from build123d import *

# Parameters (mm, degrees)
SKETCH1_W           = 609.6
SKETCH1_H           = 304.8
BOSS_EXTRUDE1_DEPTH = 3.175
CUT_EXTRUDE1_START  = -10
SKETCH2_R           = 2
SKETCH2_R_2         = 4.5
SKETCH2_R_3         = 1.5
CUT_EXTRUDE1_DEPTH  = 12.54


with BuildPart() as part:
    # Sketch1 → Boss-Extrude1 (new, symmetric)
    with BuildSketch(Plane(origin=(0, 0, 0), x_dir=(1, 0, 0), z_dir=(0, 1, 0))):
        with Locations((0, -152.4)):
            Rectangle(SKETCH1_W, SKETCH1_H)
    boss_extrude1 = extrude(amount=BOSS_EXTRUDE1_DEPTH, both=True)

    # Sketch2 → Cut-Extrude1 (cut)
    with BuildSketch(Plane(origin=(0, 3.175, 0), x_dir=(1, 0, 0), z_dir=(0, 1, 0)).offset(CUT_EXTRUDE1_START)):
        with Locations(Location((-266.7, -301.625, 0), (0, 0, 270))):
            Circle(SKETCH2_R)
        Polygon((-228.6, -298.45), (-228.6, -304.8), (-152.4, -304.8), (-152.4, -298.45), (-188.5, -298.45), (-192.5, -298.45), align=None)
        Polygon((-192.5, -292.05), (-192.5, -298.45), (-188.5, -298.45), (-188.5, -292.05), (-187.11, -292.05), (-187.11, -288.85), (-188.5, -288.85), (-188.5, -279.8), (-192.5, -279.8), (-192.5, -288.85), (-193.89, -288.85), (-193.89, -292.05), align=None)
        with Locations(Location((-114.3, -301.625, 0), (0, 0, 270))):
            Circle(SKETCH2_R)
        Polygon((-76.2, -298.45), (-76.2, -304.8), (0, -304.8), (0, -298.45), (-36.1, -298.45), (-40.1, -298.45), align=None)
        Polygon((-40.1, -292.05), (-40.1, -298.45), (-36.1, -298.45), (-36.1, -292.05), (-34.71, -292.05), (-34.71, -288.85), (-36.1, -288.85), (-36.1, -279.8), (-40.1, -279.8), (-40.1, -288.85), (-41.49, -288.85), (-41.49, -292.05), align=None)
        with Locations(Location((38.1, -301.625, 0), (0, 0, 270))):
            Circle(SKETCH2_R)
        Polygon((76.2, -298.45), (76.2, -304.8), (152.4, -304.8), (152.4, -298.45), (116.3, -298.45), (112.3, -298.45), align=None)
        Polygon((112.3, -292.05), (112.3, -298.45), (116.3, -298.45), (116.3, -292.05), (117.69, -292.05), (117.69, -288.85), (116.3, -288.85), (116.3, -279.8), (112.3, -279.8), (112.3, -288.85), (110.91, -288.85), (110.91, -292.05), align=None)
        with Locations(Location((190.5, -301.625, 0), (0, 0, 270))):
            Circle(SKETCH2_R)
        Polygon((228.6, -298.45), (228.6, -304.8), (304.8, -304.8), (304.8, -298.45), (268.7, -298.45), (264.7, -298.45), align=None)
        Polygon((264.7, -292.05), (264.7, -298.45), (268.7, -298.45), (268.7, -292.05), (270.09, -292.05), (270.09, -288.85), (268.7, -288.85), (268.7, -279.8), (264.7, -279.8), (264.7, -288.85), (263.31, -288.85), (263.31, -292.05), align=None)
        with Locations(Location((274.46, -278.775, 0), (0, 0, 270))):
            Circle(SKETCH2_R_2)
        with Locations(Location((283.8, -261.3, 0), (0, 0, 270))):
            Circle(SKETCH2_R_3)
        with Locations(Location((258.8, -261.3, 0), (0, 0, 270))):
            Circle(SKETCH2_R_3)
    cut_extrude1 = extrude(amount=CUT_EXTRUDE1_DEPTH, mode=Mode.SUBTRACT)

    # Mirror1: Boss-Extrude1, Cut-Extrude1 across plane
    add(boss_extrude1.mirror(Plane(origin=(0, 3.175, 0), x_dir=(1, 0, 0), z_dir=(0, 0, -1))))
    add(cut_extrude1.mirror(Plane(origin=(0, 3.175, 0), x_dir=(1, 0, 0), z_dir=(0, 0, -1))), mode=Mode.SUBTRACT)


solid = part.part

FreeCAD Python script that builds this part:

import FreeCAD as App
import Part
import Sketcher
from FreeCAD import Vector

doc = App.newDocument("Part")
body = doc.addObject("PartDesign::Body", "Body")

# Sketch on XZ plane
sketch1 = body.newObject("Sketcher::SketchObject", "Sketch")
sketch1.AttachmentSupport = (doc.getObject("XZ_Plane"), [""])
sketch1.MapMode = "FlatFace"
sketch1.addGeometry([
    Part.LineSegment(Vector(-305, 0, 0), Vector(-305, 305, 0)),
    Part.LineSegment(Vector(-305, 305, 0), Vector(305, 305, 0)),
    Part.LineSegment(Vector(305, 305, 0), Vector(305, 0, 0)),
    Part.LineSegment(Vector(305, 0, 0), Vector(-305, 0, 0)),
], False)
sketch1.addConstraint([
    Sketcher.Constraint("Coincident", 0, 2, 1, 1),
    Sketcher.Constraint("Coincident", 1, 2, 2, 1),
    Sketcher.Constraint("Coincident", 2, 2, 3, 1),
    Sketcher.Constraint("Coincident", 3, 2, 0, 1),
    Sketcher.Constraint("Vertical", 0),
    Sketcher.Constraint("Horizontal", 1),
    Sketcher.Constraint("Vertical", 2),
    Sketcher.Constraint("Horizontal", 3),
    Sketcher.Constraint("Symmetric", 2, 2, 3, 2, -1, 1),
    Sketcher.Constraint("DistanceX", 1, 1, 1, 2, 609.6),
    Sketcher.Constraint("DistanceY", 0, 1, 0, 2, 304.8),
])
pad1 = body.newObject("PartDesign::Pad", "Pad")
pad1.Profile = sketch1
pad1.Length = 6.35
pad1.Midplane = True

# Sketch on XZ plane
sketch2 = body.newObject("Sketcher::SketchObject", "Sketch001")
sketch2.AttachmentSupport = (doc.getObject("XZ_Plane"), [""])
sketch2.MapMode = "FlatFace"
sketch2.AttachmentOffset = App.Placement(Vector(0, 0, 6.825), App.Rotation())
sketch2.addGeometry([
    Part.Circle(Vector(-266.7, 301.6, 0), Vector(0, 0, 1), 2),  # 0
    Part.LineSegment(Vector(-228.6, 298.4, 0), Vector(-228.6, 304.8, 0)),  # 1
    Part.LineSegment(Vector(-228.6, 304.8, 0), Vector(-152.4, 304.8, 0)),  # 2
    Part.LineSegment(Vector(-152.4, 304.8, 0), Vector(-152.4, 298.4, 0)),  # 3
    Part.LineSegment(Vector(-152.4, 298.4, 0), Vector(-188.5, 298.4, 0)),  # 4
    Part.LineSegment(Vector(-188.5, 298.4, 0), Vector(-188.5, 292.1, 0)),  # 5
    Part.LineSegment(Vector(-188.5, 292.1, 0), Vector(-187.1, 292.1, 0)),  # 6
    Part.LineSegment(Vector(-187.1, 292.1, 0), Vector(-187.1, 288.9, 0)),  # 7
    Part.LineSegment(Vector(-187.1, 288.9, 0), Vector(-188.5, 288.9, 0)),  # 8
    Part.LineSegment(Vector(-188.5, 288.9, 0), Vector(-188.5, 279.8, 0)),  # 9
    Part.LineSegment(Vector(-188.5, 279.8, 0), Vector(-192.5, 279.8, 0)),  # 10
    Part.LineSegment(Vector(-192.5, 279.8, 0), Vector(-192.5, 288.9, 0)),  # 11
    Part.LineSegment(Vector(-192.5, 288.9, 0), Vector(-193.9, 288.9, 0)),  # 12
    Part.LineSegment(Vector(-193.9, 288.9, 0), Vector(-193.9, 292.1, 0)),  # 13
    Part.LineSegment(Vector(-193.9, 292.1, 0), Vector(-192.5, 292.1, 0)),  # 14
    Part.LineSegment(Vector(-192.5, 292.1, 0), Vector(-192.5, 298.4, 0)),  # 15
    Part.LineSegment(Vector(-192.5, 298.4, 0), Vector(-228.6, 298.4, 0)),  # 16
    Part.Circle(Vector(-114.3, 301.6, 0), Vector(0, 0, 1), 2),  # 17
    Part.LineSegment(Vector(-76.2, 298.4, 0), Vector(-76.2, 304.8, 0)),  # 18
    Part.LineSegment(Vector(-76.2, 304.8, 0), Vector(0, 304.8, 0)),  # 19
    Part.LineSegment(Vector(0, 304.8, 0), Vector(0, 298.4, 0)),  # 20
    Part.LineSegment(Vector(0, 298.4, 0), Vector(-36.1, 298.4, 0)),  # 21
    Part.LineSegment(Vector(-36.1, 298.4, 0), Vector(-36.1, 292.1, 0)),  # 22
    Part.LineSegment(Vector(-36.1, 292.1, 0), Vector(-34.7, 292.1, 0)),  # 23
    Part.LineSegment(Vector(-34.7, 292.1, 0), Vector(-34.7, 288.9, 0)),  # 24
    Part.LineSegment(Vector(-34.7, 288.9, 0), Vector(-36.1, 288.9, 0)),  # 25
    Part.LineSegment(Vector(-36.1, 288.9, 0), Vector(-36.1, 279.8, 0)),  # 26
    Part.LineSegment(Vector(-36.1, 279.8, 0), Vector(-40.1, 279.8, 0)),  # 27
    Part.LineSegment(Vector(-40.1, 279.8, 0), Vector(-40.1, 288.9, 0)),  # 28
    Part.LineSegment(Vector(-40.1, 288.9, 0), Vector(-41.5, 288.9, 0)),  # 29
    Part.LineSegment(Vector(-41.5, 288.9, 0), Vector(-41.5, 292.1, 0)),  # 30
    Part.LineSegment(Vector(-41.5, 292.1, 0), Vector(-40.1, 292.1, 0)),  # 31
    Part.LineSegment(Vector(-40.1, 292.1, 0), Vector(-40.1, 298.4, 0)),  # 32
    Part.LineSegment(Vector(-40.1, 298.4, 0), Vector(-76.2, 298.4, 0)),  # 33
    Part.Circle(Vector(38.1, 301.6, 0), Vector(0, 0, 1), 2),  # 34
    Part.LineSegment(Vector(76.2, 298.4, 0), Vector(76.2, 304.8, 0)),  # 35
    Part.LineSegment(Vector(76.2, 304.8, 0), Vector(152.4, 304.8, 0)),  # 36
    Part.LineSegment(Vector(152.4, 304.8, 0), Vector(152.4, 298.4, 0)),  # 37
    Part.LineSegment(Vector(152.4, 298.4, 0), Vector(116.3, 298.4, 0)),  # 38
    Part.LineSegment(Vector(116.3, 298.4, 0), Vector(116.3, 292.1, 0)),  # 39
    Part.LineSegment(Vector(116.3, 292.1, 0), Vector(117.7, 292.1, 0)),  # 40
    Part.LineSegment(Vector(117.7, 292.1, 0), Vector(117.7, 288.9, 0)),  # 41
    Part.LineSegment(Vector(117.7, 288.9, 0), Vector(116.3, 288.9, 0)),  # 42
    Part.LineSegment(Vector(116.3, 288.9, 0), Vector(116.3, 279.8, 0)),  # 43
    Part.LineSegment(Vector(116.3, 279.8, 0), Vector(112.3, 279.8, 0)),  # 44
    Part.LineSegment(Vector(112.3, 279.8, 0), Vector(112.3, 288.9, 0)),  # 45
    Part.LineSegment(Vector(112.3, 288.9, 0), Vector(110.9, 288.9, 0)),  # 46
    Part.LineSegment(Vector(110.9, 288.9, 0), Vector(110.9, 292.1, 0)),  # 47
    Part.LineSegment(Vector(110.9, 292.1, 0), Vector(112.3, 292.1, 0)),  # 48
    Part.LineSegment(Vector(112.3, 292.1, 0), Vector(112.3, 298.4, 0)),  # 49
    Part.LineSegment(Vector(112.3, 298.4, 0), Vector(76.2, 298.4, 0)),  # 50
    Part.Circle(Vector(190.5, 301.6, 0), Vector(0, 0, 1), 2),  # 51
    Part.LineSegment(Vector(228.6, 298.4, 0), Vector(228.6, 304.8, 0)),  # 52
    Part.LineSegment(Vector(228.6, 304.8, 0), Vector(304.8, 304.8, 0)),  # 53
    Part.LineSegment(Vector(304.8, 304.8, 0), Vector(304.8, 298.4, 0)),  # 54
    Part.LineSegment(Vector(304.8, 298.4, 0), Vector(268.7, 298.4, 0)),  # 55
    Part.LineSegment(Vector(268.7, 298.4, 0), Vector(268.7, 292.1, 0)),  # 56
    Part.LineSegment(Vector(268.7, 292.1, 0), Vector(270.1, 292.1, 0)),  # 57
    Part.LineSegment(Vector(270.1, 292.1, 0), Vector(270.1, 288.9, 0)),  # 58
    Part.LineSegment(Vector(270.1, 288.9, 0), Vector(268.7, 288.9, 0)),  # 59
    Part.LineSegment(Vector(268.7, 288.9, 0), Vector(268.7, 279.8, 0)),  # 60
    Part.LineSegment(Vector(268.7, 279.8, 0), Vector(264.7, 279.8, 0)),  # 61
    Part.LineSegment(Vector(264.7, 279.8, 0), Vector(264.7, 288.9, 0)),  # 62
    Part.LineSegment(Vector(264.7, 288.9, 0), Vector(263.3, 288.9, 0)),  # 63
    Part.LineSegment(Vector(263.3, 288.9, 0), Vector(263.3, 292.1, 0)),  # 64
    Part.LineSegment(Vector(263.3, 292.1, 0), Vector(264.7, 292.1, 0)),  # 65
    Part.LineSegment(Vector(264.7, 292.1, 0), Vector(264.7, 298.4, 0)),  # 66
    Part.LineSegment(Vector(264.7, 298.4, 0), Vector(228.6, 298.4, 0)),  # 67
    Part.Circle(Vector(274.5, 278.8, 0), Vector(0, 0, 1), 4.5),  # 68
    Part.Circle(Vector(283.8, 261.3, 0), Vector(0, 0, 1), 1.5),  # 69
    Part.Circle(Vector(258.8, 261.3, 0), Vector(0, 0, 1), 1.5),  # 70
], False)
sketch2.addConstraint([
    Sketcher.Constraint("Coincident", 1, 2, 2, 1),
    Sketcher.Constraint("Coincident", 2, 2, 3, 1),
    Sketcher.Constraint("Coincident", 3, 2, 4, 1),
    Sketcher.Constraint("Coincident", 4, 2, 5, 1),
    Sketcher.Constraint("Coincident", 5, 2, 6, 1),
    Sketcher.Constraint("Coincident", 6, 2, 7, 1),
    Sketcher.Constraint("Coincident", 7, 2, 8, 1),
    Sketcher.Constraint("Coincident", 8, 2, 9, 1),
    Sketcher.Constraint("Coincident", 9, 2, 10, 1),
    Sketcher.Constraint("Coincident", 10, 2, 11, 1),
    Sketcher.Constraint("Coincident", 11, 2, 12, 1),
    Sketcher.Constraint("Coincident", 12, 2, 13, 1),
    Sketcher.Constraint("Coincident", 13, 2, 14, 1),
    Sketcher.Constraint("Coincident", 14, 2, 15, 1),
    Sketcher.Constraint("Coincident", 15, 2, 16, 1),
    Sketcher.Constraint("Coincident", 16, 2, 1, 1),
    Sketcher.Constraint("Coincident", 18, 2, 19, 1),
    Sketcher.Constraint("Coincident", 19, 2, 20, 1),
    Sketcher.Constraint("Coincident", 20, 2, 21, 1),
    Sketcher.Constraint("Coincident", 21, 2, 22, 1),
    Sketcher.Constraint("Coincident", 22, 2, 23, 1),
    Sketcher.Constraint("Coincident", 23, 2, 24, 1),
    Sketcher.Constraint("Coincident", 24, 2, 25, 1),
    Sketcher.Constraint("Coincident", 25, 2, 26, 1),
    Sketcher.Constraint("Coincident", 26, 2, 27, 1),
    Sketcher.Constraint("Coincident", 27, 2, 28, 1),
    Sketcher.Constraint("Coincident", 28, 2, 29, 1),
    Sketcher.Constraint("Coincident", 29, 2, 30, 1),
    Sketcher.Constraint("Coincident", 30, 2, 31, 1),
    Sketcher.Constraint("Coincident", 31, 2, 32, 1),
    Sketcher.Constraint("Coincident", 32, 2, 33, 1),
    Sketcher.Constraint("Coincident", 33, 2, 18, 1),
    Sketcher.Constraint("Coincident", 35, 2, 36, 1),
    Sketcher.Constraint("Coincident", 36, 2, 37, 1),
    Sketcher.Constraint("Coincident", 37, 2, 38, 1),
    Sketcher.Constraint("Coincident", 38, 2, 39, 1),
    Sketcher.Constraint("Coincident", 39, 2, 40, 1),
    Sketcher.Constraint("Coincident", 40, 2, 41, 1),
    Sketcher.Constraint("Coincident", 41, 2, 42, 1),
    Sketcher.Constraint("Coincident", 42, 2, 43, 1),
    Sketcher.Constraint("Coincident", 43, 2, 44, 1),
    Sketcher.Constraint("Coincident", 44, 2, 45, 1),
    Sketcher.Constraint("Coincident", 45, 2, 46, 1),
    Sketcher.Constraint("Coincident", 46, 2, 47, 1),
    Sketcher.Constraint("Coincident", 47, 2, 48, 1),
    Sketcher.Constraint("Coincident", 48, 2, 49, 1),
    Sketcher.Constraint("Coincident", 49, 2, 50, 1),
    Sketcher.Constraint("Coincident", 50, 2, 35, 1),
    Sketcher.Constraint("Coincident", 52, 2, 53, 1),
    Sketcher.Constraint("Coincident", 53, 2, 54, 1),
    Sketcher.Constraint("Coincident", 54, 2, 55, 1),
    Sketcher.Constraint("Coincident", 55, 2, 56, 1),
    Sketcher.Constraint("Coincident", 56, 2, 57, 1),
    Sketcher.Constraint("Coincident", 57, 2, 58, 1),
    Sketcher.Constraint("Coincident", 58, 2, 59, 1),
    Sketcher.Constraint("Coincident", 59, 2, 60, 1),
    Sketcher.Constraint("Coincident", 60, 2, 61, 1),
    Sketcher.Constraint("Coincident", 61, 2, 62, 1),
    Sketcher.Constraint("Coincident", 62, 2, 63, 1),
    Sketcher.Constraint("Coincident", 63, 2, 64, 1),
    Sketcher.Constraint("Coincident", 64, 2, 65, 1),
    Sketcher.Constraint("Coincident", 65, 2, 66, 1),
    Sketcher.Constraint("Coincident", 66, 2, 67, 1),
    Sketcher.Constraint("Coincident", 67, 2, 52, 1),
    Sketcher.Constraint("Vertical", 1),
    Sketcher.Constraint("Horizontal", 2),
    Sketcher.Constraint("Vertical", 3),
    Sketcher.Constraint("Horizontal", 4),
    Sketcher.Constraint("Vertical", 5),
    Sketcher.Constraint("Horizontal", 6),
    Sketcher.Constraint("Vertical", 7),
    Sketcher.Constraint("Horizontal", 8),
    Sketcher.Constraint("Vertical", 9),
    Sketcher.Constraint("Horizontal", 10),
    Sketcher.Constraint("Vertical", 11),
    Sketcher.Constraint("Horizontal", 12),
    Sketcher.Constraint("Vertical", 13),
    Sketcher.Constraint("Horizontal", 14),
    Sketcher.Constraint("Vertical", 15),
    Sketcher.Constraint("Horizontal", 16),
    Sketcher.Constraint("Vertical", 18),
    Sketcher.Constraint("Horizontal", 19),
    Sketcher.Constraint("Vertical", 20),
    Sketcher.Constraint("Horizontal", 21),
    Sketcher.Constraint("Vertical", 22),
    Sketcher.Constraint("Horizontal", 23),
    Sketcher.Constraint("Vertical", 24),
    Sketcher.Constraint("Horizontal", 25),
    Sketcher.Constraint("Vertical", 26),
    Sketcher.Constraint("Horizontal", 27),
    Sketcher.Constraint("Vertical", 28),
    Sketcher.Constraint("Horizontal", 29),
    Sketcher.Constraint("Vertical", 30),
    Sketcher.Constraint("Horizontal", 31),
    Sketcher.Constraint("Vertical", 32),
    Sketcher.Constraint("Horizontal", 33),
    Sketcher.Constraint("Vertical", 35),
    Sketcher.Constraint("Horizontal", 36),
    Sketcher.Constraint("Vertical", 37),
    Sketcher.Constraint("Horizontal", 38),
    Sketcher.Constraint("Vertical", 39),
    Sketcher.Constraint("Horizontal", 40),
    Sketcher.Constraint("Vertical", 41),
    Sketcher.Constraint("Horizontal", 42),
    Sketcher.Constraint("Vertical", 43),
    Sketcher.Constraint("Horizontal", 44),
    Sketcher.Constraint("Vertical", 45),
    Sketcher.Constraint("Horizontal", 46),
    Sketcher.Constraint("Vertical", 47),
    Sketcher.Constraint("Horizontal", 48),
    Sketcher.Constraint("Vertical", 49),
    Sketcher.Constraint("Horizontal", 50),
    Sketcher.Constraint("Vertical", 52),
    Sketcher.Constraint("Horizontal", 53),
    Sketcher.Constraint("Vertical", 54),
    Sketcher.Constraint("Horizontal", 55),
    Sketcher.Constraint("Vertical", 56),
    Sketcher.Constraint("Horizontal", 57),
    Sketcher.Constraint("Vertical", 58),
    Sketcher.Constraint("Horizontal", 59),
    Sketcher.Constraint("Vertical", 60),
    Sketcher.Constraint("Horizontal", 61),
    Sketcher.Constraint("Vertical", 62),
    Sketcher.Constraint("Horizontal", 63),
    Sketcher.Constraint("Vertical", 64),
    Sketcher.Constraint("Horizontal", 65),
    Sketcher.Constraint("Vertical", 66),
    Sketcher.Constraint("Horizontal", 67),
    Sketcher.Constraint("Equal", 0, 17),
    Sketcher.Constraint("Equal", 17, 34),
    Sketcher.Constraint("Equal", 34, 51),
    Sketcher.Constraint("Equal", 69, 70),
    Sketcher.Constraint("Symmetric", 18, 2, 35, 2, -2),
    Sketcher.Constraint("Symmetric", 2, 2, 36, 2, -2),
    Sketcher.Constraint("Symmetric", 1, 2, 52, 2, -2),
    Sketcher.Constraint("PointOnObject", 19, 2, -2),
    Sketcher.Constraint("Horizontal", 0, 3, 17, 3),
    Sketcher.Constraint("Horizontal", 17, 3, 34, 3),
    Sketcher.Constraint("Horizontal", 34, 3, 51, 3),
    Sketcher.Constraint("Horizontal", 69, 3, 70, 3),
    Sketcher.Constraint("Horizontal", 8, 2, 11, 2),
    Sketcher.Constraint("Horizontal", 6, 2, 13, 2),
    Sketcher.Constraint("Horizontal", 4, 2, 15, 2),
    Sketcher.Constraint("Horizontal", 16, 2, 20, 2),
    Sketcher.Constraint("Horizontal", 14, 2, 22, 2),
    Sketcher.Constraint("Horizontal", 12, 2, 24, 2),
    Sketcher.Constraint("Horizontal", 10, 2, 26, 2),
    Sketcher.Constraint("Horizontal", 25, 2, 28, 2),
    Sketcher.Constraint("Horizontal", 23, 2, 30, 2),
    Sketcher.Constraint("Horizontal", 21, 2, 32, 2),
    Sketcher.Constraint("Horizontal", 33, 2, 37, 2),
    Sketcher.Constraint("Horizontal", 31, 2, 39, 2),
    Sketcher.Constraint("Horizontal", 29, 2, 41, 2),
    Sketcher.Constraint("Horizontal", 27, 2, 43, 2),
    Sketcher.Constraint("Horizontal", 42, 2, 45, 2),
    Sketcher.Constraint("Horizontal", 40, 2, 47, 2),
    Sketcher.Constraint("Horizontal", 38, 2, 49, 2),
    Sketcher.Constraint("Horizontal", 50, 2, 54, 2),
    Sketcher.Constraint("Horizontal", 48, 2, 56, 2),
    Sketcher.Constraint("Horizontal", 46, 2, 58, 2),
    Sketcher.Constraint("Horizontal", 44, 2, 60, 2),
    Sketcher.Constraint("Horizontal", 59, 2, 62, 2),
    Sketcher.Constraint("Horizontal", 57, 2, 64, 2),
    Sketcher.Constraint("Horizontal", 55, 2, 66, 2),
    Sketcher.Constraint("Vertical", 5, 2, 8, 2),
    Sketcher.Constraint("Vertical", 11, 2, 14, 2),
    Sketcher.Constraint("Vertical", 22, 2, 25, 2),
    Sketcher.Constraint("Vertical", 28, 2, 31, 2),
    Sketcher.Constraint("Vertical", 39, 2, 42, 2),
    Sketcher.Constraint("Vertical", 45, 2, 48, 2),
    Sketcher.Constraint("Vertical", 56, 2, 59, 2),
    Sketcher.Constraint("Vertical", 62, 2, 65, 2),
    Sketcher.Constraint("Equal", 8, 12),
    Sketcher.Constraint("Equal", 4, 16),
    Sketcher.Constraint("Equal", 2, 19),
    Sketcher.Constraint("Equal", 16, 21),
    Sketcher.Constraint("Equal", 14, 23),
    Sketcher.Constraint("Equal", 10, 27),
    Sketcher.Constraint("Equal", 25, 29),
    Sketcher.Constraint("Equal", 19, 36),
    Sketcher.Constraint("Equal", 33, 38),
    Sketcher.Constraint("Equal", 31, 40),
    Sketcher.Constraint("Equal", 27, 44),
    Sketcher.Constraint("Equal", 42, 46),
    Sketcher.Constraint("Equal", 36, 53),
    Sketcher.Constraint("Equal", 50, 55),
    Sketcher.Constraint("Equal", 48, 57),
    Sketcher.Constraint("Equal", 44, 61),
    Sketcher.Constraint("Equal", 59, 63),
    Sketcher.Constraint("Diameter", 0, 4.0),
    Sketcher.Constraint("Diameter", 68, 9.0),
    Sketcher.Constraint("Diameter", 69, 3.0),
    Sketcher.Constraint("DistanceX", 10, 2, 10, 1, 4.0),
    Sketcher.Constraint("DistanceX", 2, 1, 2, 2, 76.2),
    Sketcher.Constraint("DistanceY", 5, 2, 5, 1, 6.4),
    Sketcher.Constraint("DistanceY", 7, 2, 7, 1, 3.2),
    Sketcher.Constraint("DistanceX", 6, 1, 6, 2, 1.39),
    Sketcher.Constraint("DistanceY", 1, 1, 1, 2, 6.35),
    Sketcher.Constraint("DistanceY", 9, 2, 9, 1, 9.05),
    Sketcher.Constraint("DistanceX", 0, 3, -1, 1, 266.7),
    Sketcher.Constraint("DistanceX", 17, 3, -1, 1, 114.3),
    Sketcher.Constraint("DistanceX", -1, 1, 34, 3, 38.1),
    Sketcher.Constraint("DistanceX", -1, 1, 51, 3, 190.5),
    Sketcher.Constraint("DistanceX", -1, 1, 69, 3, 283.8),
    Sketcher.Constraint("DistanceY", -1, 1, 69, 3, 261.3),
    Sketcher.Constraint("DistanceX", -1, 1, 70, 3, 258.8),
    Sketcher.Constraint("DistanceY", -1, 1, 1, 2, 304.8),
    Sketcher.Constraint("DistanceX", -1, 1, 68, 3, 274.46),
    Sketcher.Constraint("DistanceY", -1, 1, 0, 3, 301.625),
    Sketcher.Constraint("DistanceY", -1, 1, 68, 3, 278.775),
])
pocket1 = body.newObject("PartDesign::Pocket", "Pocket")
pocket1.Profile = sketch2
pocket1.Length = 12.54
doc.recompute()

mirrored = body.newObject("PartDesign::Mirrored", "Mirrored")
mirrored.Originals = [pad1, pocket1]
mirrored.MirrorPlane = (doc.getObject("XY_Plane"), [""])
body.Tip = mirrored

doc.recompute()
